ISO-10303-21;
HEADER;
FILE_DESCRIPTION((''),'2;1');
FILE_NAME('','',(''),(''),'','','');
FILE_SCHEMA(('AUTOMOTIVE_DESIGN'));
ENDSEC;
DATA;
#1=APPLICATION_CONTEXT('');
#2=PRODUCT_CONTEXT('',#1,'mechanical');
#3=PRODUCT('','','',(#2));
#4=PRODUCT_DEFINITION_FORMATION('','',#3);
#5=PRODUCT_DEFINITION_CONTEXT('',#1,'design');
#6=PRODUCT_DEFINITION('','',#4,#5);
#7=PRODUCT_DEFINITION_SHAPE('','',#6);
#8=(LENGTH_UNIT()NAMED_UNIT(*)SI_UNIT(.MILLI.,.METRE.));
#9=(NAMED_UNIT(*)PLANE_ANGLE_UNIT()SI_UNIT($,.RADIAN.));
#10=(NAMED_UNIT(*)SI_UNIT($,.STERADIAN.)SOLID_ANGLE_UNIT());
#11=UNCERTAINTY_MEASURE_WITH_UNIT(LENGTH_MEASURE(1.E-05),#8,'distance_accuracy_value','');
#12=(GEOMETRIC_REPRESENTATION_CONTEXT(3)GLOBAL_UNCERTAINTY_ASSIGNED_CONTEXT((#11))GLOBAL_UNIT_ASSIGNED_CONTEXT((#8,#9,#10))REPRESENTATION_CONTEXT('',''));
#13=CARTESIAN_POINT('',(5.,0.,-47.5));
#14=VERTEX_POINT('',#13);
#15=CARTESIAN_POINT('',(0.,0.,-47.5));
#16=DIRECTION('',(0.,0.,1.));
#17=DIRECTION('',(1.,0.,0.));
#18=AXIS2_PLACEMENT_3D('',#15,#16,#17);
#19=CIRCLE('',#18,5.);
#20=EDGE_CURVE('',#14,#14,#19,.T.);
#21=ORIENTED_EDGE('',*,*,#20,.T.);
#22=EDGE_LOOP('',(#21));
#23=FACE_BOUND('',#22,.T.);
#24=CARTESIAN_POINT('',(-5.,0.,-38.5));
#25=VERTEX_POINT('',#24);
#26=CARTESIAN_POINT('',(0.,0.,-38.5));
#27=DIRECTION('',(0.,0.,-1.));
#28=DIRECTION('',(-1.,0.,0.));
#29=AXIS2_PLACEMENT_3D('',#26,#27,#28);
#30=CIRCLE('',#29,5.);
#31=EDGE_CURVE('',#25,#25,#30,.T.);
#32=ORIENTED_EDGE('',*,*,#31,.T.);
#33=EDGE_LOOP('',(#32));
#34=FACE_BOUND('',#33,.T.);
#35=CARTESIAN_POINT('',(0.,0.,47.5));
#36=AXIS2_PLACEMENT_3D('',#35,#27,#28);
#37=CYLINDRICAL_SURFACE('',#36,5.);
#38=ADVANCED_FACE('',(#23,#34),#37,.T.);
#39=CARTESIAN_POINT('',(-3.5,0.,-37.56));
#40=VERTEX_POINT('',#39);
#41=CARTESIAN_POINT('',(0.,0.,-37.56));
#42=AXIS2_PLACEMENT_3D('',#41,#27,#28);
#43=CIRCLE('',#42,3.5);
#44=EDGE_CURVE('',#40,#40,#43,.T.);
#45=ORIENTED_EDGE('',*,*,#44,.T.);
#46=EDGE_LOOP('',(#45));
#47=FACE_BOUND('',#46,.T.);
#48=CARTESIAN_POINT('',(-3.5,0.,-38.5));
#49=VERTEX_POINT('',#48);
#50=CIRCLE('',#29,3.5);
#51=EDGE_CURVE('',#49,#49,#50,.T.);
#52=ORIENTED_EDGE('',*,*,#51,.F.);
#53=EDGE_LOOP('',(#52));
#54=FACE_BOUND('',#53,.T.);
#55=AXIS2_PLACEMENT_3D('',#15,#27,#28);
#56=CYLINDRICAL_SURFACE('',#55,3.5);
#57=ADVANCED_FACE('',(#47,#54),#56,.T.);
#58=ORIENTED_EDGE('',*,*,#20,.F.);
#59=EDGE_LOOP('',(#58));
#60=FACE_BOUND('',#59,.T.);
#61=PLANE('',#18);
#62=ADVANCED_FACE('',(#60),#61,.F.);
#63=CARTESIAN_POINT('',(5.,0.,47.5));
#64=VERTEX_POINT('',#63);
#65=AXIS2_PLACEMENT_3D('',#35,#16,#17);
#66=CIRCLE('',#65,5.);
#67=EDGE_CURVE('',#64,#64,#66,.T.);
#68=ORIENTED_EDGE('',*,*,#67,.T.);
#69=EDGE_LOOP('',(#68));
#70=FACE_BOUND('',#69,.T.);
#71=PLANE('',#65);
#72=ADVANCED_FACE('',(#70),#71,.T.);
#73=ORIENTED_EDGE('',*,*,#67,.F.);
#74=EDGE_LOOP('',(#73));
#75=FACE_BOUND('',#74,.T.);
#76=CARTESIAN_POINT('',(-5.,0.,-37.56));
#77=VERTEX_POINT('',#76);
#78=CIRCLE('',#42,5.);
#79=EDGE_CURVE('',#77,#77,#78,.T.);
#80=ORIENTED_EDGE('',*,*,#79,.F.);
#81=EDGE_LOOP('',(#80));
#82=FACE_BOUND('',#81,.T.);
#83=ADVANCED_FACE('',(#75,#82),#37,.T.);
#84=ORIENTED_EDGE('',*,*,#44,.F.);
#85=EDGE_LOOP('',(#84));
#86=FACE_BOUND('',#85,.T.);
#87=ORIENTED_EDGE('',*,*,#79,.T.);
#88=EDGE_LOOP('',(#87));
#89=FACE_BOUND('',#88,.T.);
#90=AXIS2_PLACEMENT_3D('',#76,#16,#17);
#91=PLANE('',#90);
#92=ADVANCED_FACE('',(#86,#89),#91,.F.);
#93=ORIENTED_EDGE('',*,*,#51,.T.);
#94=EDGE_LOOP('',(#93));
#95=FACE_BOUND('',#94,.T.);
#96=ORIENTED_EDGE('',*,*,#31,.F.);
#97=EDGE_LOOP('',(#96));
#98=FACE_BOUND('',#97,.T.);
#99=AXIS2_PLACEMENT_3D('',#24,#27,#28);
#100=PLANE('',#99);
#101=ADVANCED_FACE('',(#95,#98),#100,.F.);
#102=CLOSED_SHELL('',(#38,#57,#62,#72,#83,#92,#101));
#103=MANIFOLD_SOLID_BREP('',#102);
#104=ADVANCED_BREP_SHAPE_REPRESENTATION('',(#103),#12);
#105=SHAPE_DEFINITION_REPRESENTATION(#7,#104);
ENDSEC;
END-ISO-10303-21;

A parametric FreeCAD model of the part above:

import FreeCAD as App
import Part
import Sketcher
from FreeCAD import Vector

doc = App.newDocument("Part")
params = doc.addObject("Spreadsheet::Sheet", "Params")
for row, (alias, value) in enumerate([
    ("sketch1_diameter", "10 mm"),
    ("pad1_length", "95 mm"),
    ("sketch2_width", "1.5 mm"),
    ("sketch2_height", "0.94 mm"),
    ("groove_angle", "360 deg"),
], start=1):
    params.set(f"A{row}", alias)
    params.set(f"B{row}", "=" + value)
    params.setAlias(f"B{row}", alias)

body = doc.addObject("PartDesign::Body", "Body")

# Sketch on XY plane
sketch1 = body.newObject("Sketcher::SketchObject", "Sketch")
sketch1.AttachmentSupport = (doc.getObject("XY_Plane"), [""])
sketch1.MapMode = "FlatFace"
sketch1.addGeometry(Part.Circle(Vector(0, 0, 0), Vector(0, 0, 1), 5), False)
sketch1.addConstraint([
    Sketcher.Constraint("Coincident", 0, 3, -1, 1),
    Sketcher.Constraint("Diameter", 0, 10.0),
])
sketch1.setExpression("Constraints[1]", "Params.sketch1_diameter")
pad1 = body.newObject("PartDesign::Pad", "Pad")
pad1.Profile = sketch1
pad1.setExpression("Length", "Params.pad1_length")
pad1.Midplane = True

# Sketch on XZ plane
sketch2 = body.newObject("Sketcher::SketchObject", "Sketch001")
sketch2.AttachmentSupport = (doc.getObject("XZ_Plane"), [""])
sketch2.MapMode = "FlatFace"
sketch2.addGeometry([
    Part.LineSegment(Vector(-5, -38.5, 0), Vector(-5, -37.6, 0)),
    Part.LineSegment(Vector(-5, -37.6, 0), Vector(-3.5, -37.6, 0)),
    Part.LineSegment(Vector(-3.5, -37.6, 0), Vector(-3.5, -38.5, 0)),
    Part.LineSegment(Vector(-3.5, -38.5, 0), Vector(-5, -38.5, 0)),
], False)
sketch2.addConstraint([
    Sketcher.Constraint("Coincident", 0, 2, 1, 1),
    Sketcher.Constraint("Coincident", 1, 2, 2, 1),
    Sketcher.Constraint("Coincident", 2, 2, 3, 1),
    Sketcher.Constraint("Coincident", 3, 2, 0, 1),
    Sketcher.Constraint("Vertical", 0),
    Sketcher.Constraint("Horizontal", 1),
    Sketcher.Constraint("Vertical", 2),
    Sketcher.Constraint("Horizontal", 3),
    Sketcher.Constraint("DistanceX", 1, 1, 1, 2, 1.5),
    Sketcher.Constraint("DistanceX", 0, 2, -1, 1, 5.0),
    Sketcher.Constraint("DistanceY", 0, 1, 0, 2, 0.94),
    Sketcher.Constraint("DistanceY", 2, 2, -1, 1, 38.5),
])
sketch2.setExpression("Constraints[8]", "Params.sketch2_width")
sketch2.setExpression("Constraints[10]", "Params.sketch2_height")
groove = body.newObject("PartDesign::Groove", "Groove")
groove.Profile = sketch2
groove.ReferenceAxis = (sketch2, ["V_Axis"])
groove.setExpression("Angle", "Params.groove_angle")

doc.recompute()
